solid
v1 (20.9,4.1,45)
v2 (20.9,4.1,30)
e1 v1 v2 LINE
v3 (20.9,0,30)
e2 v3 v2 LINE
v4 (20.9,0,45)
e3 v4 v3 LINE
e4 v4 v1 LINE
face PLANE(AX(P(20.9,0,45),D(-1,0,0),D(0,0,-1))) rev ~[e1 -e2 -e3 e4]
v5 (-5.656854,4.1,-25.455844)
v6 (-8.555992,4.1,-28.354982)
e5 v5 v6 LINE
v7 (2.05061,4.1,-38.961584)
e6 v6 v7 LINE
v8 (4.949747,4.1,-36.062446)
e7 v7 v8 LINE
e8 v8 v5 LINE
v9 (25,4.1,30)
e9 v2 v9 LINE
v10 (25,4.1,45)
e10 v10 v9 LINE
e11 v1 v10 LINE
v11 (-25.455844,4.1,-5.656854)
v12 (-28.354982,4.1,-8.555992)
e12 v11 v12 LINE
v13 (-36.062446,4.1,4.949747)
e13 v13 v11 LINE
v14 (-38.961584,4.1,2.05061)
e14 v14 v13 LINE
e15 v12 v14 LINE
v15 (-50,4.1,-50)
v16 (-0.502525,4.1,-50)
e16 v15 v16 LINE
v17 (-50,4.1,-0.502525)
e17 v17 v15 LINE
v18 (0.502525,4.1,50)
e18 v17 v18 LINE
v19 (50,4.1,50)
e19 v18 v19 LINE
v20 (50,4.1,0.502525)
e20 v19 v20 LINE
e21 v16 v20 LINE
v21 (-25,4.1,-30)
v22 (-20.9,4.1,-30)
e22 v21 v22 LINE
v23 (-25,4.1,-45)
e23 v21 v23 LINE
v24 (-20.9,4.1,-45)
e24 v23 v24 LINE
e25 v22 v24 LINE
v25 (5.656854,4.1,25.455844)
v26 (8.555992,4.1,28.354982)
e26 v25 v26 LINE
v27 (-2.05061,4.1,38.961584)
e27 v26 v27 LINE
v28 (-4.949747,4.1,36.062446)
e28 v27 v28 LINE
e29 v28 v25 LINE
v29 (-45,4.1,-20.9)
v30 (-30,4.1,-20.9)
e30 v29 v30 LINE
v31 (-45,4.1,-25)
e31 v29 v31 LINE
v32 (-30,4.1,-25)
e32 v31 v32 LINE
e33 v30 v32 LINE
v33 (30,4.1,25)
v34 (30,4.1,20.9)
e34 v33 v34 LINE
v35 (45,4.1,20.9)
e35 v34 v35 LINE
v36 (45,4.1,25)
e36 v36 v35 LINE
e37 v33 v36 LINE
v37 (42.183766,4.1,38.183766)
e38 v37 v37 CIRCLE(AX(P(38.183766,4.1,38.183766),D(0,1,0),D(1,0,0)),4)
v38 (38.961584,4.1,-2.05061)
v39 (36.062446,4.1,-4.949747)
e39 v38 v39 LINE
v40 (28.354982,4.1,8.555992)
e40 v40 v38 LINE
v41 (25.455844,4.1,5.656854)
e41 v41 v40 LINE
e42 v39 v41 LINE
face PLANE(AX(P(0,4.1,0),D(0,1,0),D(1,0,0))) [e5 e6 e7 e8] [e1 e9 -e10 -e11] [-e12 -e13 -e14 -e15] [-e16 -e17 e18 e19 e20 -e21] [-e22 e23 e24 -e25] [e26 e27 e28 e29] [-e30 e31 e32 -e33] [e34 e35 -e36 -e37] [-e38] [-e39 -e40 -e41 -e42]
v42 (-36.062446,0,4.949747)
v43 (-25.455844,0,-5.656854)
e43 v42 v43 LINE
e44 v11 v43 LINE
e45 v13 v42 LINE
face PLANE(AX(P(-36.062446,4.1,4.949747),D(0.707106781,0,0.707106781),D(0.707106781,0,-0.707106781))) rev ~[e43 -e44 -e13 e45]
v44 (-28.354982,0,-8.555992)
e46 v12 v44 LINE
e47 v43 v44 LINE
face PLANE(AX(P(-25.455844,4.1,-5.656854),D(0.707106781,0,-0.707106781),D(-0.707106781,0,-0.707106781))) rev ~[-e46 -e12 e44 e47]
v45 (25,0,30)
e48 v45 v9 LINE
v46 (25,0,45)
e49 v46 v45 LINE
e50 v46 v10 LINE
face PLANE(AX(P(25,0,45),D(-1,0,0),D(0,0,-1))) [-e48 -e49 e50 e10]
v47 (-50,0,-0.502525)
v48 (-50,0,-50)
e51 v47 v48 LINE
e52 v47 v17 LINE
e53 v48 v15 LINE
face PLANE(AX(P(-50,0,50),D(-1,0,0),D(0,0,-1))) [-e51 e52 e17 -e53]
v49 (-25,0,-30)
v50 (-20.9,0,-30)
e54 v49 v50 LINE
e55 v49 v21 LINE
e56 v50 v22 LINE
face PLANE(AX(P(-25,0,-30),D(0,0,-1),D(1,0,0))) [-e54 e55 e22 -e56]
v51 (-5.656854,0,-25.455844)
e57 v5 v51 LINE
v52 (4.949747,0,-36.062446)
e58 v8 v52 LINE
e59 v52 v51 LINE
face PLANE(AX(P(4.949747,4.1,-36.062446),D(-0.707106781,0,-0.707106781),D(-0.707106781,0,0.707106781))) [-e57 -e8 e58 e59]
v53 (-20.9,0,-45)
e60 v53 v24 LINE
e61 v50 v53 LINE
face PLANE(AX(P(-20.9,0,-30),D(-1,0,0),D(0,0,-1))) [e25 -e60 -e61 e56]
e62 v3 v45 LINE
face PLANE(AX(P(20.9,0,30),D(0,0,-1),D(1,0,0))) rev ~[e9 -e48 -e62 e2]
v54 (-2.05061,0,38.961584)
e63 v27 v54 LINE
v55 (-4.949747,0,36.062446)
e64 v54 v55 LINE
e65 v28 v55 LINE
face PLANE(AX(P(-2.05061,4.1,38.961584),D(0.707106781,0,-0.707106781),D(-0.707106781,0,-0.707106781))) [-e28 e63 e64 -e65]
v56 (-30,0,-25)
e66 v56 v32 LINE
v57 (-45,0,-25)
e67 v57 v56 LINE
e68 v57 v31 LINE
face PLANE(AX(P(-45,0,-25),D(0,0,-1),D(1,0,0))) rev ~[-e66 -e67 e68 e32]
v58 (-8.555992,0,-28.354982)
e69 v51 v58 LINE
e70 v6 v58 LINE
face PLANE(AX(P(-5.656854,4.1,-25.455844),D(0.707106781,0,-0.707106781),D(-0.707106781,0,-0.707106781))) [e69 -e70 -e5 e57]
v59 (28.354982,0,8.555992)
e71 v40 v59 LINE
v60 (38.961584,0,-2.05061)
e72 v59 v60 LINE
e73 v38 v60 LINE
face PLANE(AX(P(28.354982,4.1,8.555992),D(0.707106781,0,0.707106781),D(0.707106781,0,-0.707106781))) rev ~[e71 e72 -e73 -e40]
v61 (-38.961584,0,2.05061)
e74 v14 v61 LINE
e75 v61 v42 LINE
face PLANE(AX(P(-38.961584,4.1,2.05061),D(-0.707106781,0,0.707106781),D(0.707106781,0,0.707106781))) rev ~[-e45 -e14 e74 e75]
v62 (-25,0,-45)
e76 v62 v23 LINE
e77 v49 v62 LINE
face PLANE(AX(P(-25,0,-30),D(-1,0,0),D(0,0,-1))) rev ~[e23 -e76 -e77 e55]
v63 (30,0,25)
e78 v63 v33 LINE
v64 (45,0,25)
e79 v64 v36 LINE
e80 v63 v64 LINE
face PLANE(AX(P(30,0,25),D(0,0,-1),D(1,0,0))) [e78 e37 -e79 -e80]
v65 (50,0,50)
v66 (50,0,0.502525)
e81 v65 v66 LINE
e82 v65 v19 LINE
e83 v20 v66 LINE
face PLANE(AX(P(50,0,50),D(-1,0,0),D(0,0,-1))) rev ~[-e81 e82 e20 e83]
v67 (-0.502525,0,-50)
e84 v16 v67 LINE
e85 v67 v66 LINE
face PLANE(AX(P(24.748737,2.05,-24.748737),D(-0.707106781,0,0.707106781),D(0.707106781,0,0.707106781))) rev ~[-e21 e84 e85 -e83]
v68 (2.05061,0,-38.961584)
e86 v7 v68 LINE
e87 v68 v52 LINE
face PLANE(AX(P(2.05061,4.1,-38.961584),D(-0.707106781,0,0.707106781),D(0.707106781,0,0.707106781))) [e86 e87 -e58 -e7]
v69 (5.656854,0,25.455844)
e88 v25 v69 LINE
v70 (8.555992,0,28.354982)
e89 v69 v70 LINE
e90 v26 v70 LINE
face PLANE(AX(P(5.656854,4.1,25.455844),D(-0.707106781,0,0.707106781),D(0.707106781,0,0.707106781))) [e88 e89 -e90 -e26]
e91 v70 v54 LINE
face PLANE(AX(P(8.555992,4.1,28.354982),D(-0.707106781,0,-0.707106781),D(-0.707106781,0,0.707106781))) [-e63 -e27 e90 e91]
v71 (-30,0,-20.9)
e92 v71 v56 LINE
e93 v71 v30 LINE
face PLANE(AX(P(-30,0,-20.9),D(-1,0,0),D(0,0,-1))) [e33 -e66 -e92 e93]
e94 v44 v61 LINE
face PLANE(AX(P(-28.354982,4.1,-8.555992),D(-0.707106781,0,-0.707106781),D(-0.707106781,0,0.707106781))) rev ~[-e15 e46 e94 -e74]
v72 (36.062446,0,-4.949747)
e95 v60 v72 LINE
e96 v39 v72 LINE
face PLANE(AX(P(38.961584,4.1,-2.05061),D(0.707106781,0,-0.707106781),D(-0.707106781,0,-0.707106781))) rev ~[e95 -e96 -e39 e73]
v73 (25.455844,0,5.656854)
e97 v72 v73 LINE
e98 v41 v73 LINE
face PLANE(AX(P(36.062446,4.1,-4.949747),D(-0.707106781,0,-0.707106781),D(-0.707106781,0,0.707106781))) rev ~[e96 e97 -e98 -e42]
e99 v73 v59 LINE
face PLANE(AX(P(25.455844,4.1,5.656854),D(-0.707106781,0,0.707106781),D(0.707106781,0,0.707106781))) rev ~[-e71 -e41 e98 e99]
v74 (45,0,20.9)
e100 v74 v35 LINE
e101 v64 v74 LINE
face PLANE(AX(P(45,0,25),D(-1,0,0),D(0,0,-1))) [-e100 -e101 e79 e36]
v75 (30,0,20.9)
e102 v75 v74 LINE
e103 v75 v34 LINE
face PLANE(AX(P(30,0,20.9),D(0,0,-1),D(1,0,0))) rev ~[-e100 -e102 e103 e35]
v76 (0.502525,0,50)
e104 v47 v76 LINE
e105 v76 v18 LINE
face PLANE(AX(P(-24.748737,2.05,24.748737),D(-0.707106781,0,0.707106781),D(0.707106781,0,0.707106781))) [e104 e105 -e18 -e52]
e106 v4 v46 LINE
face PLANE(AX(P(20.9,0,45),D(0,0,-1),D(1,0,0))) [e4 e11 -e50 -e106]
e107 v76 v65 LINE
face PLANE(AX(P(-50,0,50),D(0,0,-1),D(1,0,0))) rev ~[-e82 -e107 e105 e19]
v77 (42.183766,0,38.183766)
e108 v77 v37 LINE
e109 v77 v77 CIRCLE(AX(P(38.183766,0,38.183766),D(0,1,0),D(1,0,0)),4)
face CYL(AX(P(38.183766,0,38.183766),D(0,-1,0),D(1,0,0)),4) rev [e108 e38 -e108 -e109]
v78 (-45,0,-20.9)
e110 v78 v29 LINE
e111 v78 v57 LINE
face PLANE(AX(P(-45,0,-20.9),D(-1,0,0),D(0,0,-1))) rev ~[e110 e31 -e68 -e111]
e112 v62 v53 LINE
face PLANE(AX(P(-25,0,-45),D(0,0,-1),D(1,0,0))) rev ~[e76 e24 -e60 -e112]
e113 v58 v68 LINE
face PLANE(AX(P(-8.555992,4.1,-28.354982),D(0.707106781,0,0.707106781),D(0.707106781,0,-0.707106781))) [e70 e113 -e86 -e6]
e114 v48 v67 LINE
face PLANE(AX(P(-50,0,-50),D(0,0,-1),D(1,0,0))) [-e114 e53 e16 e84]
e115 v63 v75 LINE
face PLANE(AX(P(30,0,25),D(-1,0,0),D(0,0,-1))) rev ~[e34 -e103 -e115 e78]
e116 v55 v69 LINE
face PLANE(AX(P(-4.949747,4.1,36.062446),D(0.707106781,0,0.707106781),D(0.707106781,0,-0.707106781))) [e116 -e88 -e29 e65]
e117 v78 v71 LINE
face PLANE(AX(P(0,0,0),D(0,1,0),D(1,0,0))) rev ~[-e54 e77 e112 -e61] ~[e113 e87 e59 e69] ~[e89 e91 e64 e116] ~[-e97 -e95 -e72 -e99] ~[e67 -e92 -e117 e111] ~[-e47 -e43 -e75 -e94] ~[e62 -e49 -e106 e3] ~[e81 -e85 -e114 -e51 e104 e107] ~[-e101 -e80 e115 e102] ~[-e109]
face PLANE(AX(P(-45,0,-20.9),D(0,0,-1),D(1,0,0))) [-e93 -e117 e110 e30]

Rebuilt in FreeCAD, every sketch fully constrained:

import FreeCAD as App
import Part
import Sketcher
Q = App.Units.Quantity

doc = App.newDocument("Part")
body = doc.addObject("PartDesign::Body", "Body")

# Sketch on XZ plane
sketch1 = body.newObject("Sketcher::SketchObject", "Sketch")
sketch1.AttachmentSupport = (doc.getObject("XZ_Plane"), [""])
sketch1.MapMode = "FlatFace"
sketch1.addGeometry([
    Part.LineSegment(App.Vector(-50, -50, 0), App.Vector(-50, 50, 0)),  # 0
    Part.LineSegment(App.Vector(-50, 50, 0), App.Vector(50, 50, 0)),  # 1
    Part.LineSegment(App.Vector(50, 50, 0), App.Vector(50, -50, 0)),  # 2
    Part.LineSegment(App.Vector(50, -50, 0), App.Vector(-50, -50, 0)),  # 3
    Part.LineSegment(App.Vector(-20.9, 45, 0), App.Vector(-25, 45, 0)),  # 4
    Part.LineSegment(App.Vector(-25, 45, 0), App.Vector(-25, 30, 0)),  # 5
    Part.LineSegment(App.Vector(-25, 30, 0), App.Vector(-20.9, 30, 0)),  # 6
    Part.LineSegment(App.Vector(-20.9, 30, 0), App.Vector(-20.9, 45, 0)),  # 7
    Part.LineSegment(App.Vector(-30, 25, 0), App.Vector(-45, 25, 0)),  # 8
    Part.LineSegment(App.Vector(-45, 25, 0), App.Vector(-45, 20.9, 0)),  # 9
    Part.LineSegment(App.Vector(-45, 20.9, 0), App.Vector(-30, 20.9, 0)),  # 10
    Part.LineSegment(App.Vector(-30, 20.9, 0), App.Vector(-30, 25, 0)),  # 11
    Part.LineSegment(App.Vector(25, 45, 0), App.Vector(20.9, 45, 0)),  # 12
    Part.LineSegment(App.Vector(20.9, 45, 0), App.Vector(20.9, 30, 0)),  # 13
    Part.LineSegment(App.Vector(20.9, 30, 0), App.Vector(25, 30, 0)),  # 14
    Part.LineSegment(App.Vector(25, 30, 0), App.Vector(25, 45, 0)),  # 15
    Part.Circle(App.Vector(38.2, 38.2, 0), App.Vector(0, 0, 1), 4),  # 16
    Part.LineSegment(App.Vector(45, 25, 0), App.Vector(30, 25, 0)),  # 17
    Part.LineSegment(App.Vector(30, 25, 0), App.Vector(30, 20.9, 0)),  # 18
    Part.LineSegment(App.Vector(30, 20.9, 0), App.Vector(45, 20.9, 0)),  # 19
    Part.LineSegment(App.Vector(45, 20.9, 0), App.Vector(45, 25, 0)),  # 20
    Part.LineSegment(App.Vector(-30, -20.9, 0), App.Vector(-45, -20.9, 0)),  # 21
    Part.LineSegment(App.Vector(-45, -20.9, 0), App.Vector(-45, -25, 0)),  # 22
    Part.LineSegment(App.Vector(-45, -25, 0), App.Vector(-30, -25, 0)),  # 23
    Part.LineSegment(App.Vector(-30, -25, 0), App.Vector(-30, -20.9, 0)),  # 24
    Part.LineSegment(App.Vector(-20.9, -30, 0), App.Vector(-25, -30, 0)),  # 25
    Part.LineSegment(App.Vector(-25, -30, 0), App.Vector(-25, -45, 0)),  # 26
    Part.LineSegment(App.Vector(-25, -45, 0), App.Vector(-20.9, -45, 0)),  # 27
    Part.LineSegment(App.Vector(-20.9, -45, 0), App.Vector(-20.9, -30, 0)),  # 28
    Part.LineSegment(App.Vector(45, -20.9, 0), App.Vector(30, -20.9, 0)),  # 29
    Part.LineSegment(App.Vector(30, -20.9, 0), App.Vector(30, -25, 0)),  # 30
    Part.LineSegment(App.Vector(30, -25, 0), App.Vector(45, -25, 0)),  # 31
    Part.LineSegment(App.Vector(45, -25, 0), App.Vector(45, -20.9, 0)),  # 32
    Part.LineSegment(App.Vector(25, -30, 0), App.Vector(20.9, -30, 0)),  # 33
    Part.LineSegment(App.Vector(20.9, -30, 0), App.Vector(20.9, -45, 0)),  # 34
    Part.LineSegment(App.Vector(20.9, -45, 0), App.Vector(25, -45, 0)),  # 35
    Part.LineSegment(App.Vector(25, -45, 0), App.Vector(25, -30, 0)),  # 36
], False)
sketch1.addConstraint([
    Sketcher.Constraint("Coincident", 0, 2, 1, 1),
    Sketcher.Constraint("Coincident", 1, 2, 2, 1),
    Sketcher.Constraint("Coincident", 2, 2, 3, 1),
    Sketcher.Constraint("Coincident", 3, 2, 0, 1),
    Sketcher.Constraint("Coincident", 4, 2, 5, 1),
    Sketcher.Constraint("Coincident", 5, 2, 6, 1),
    Sketcher.Constraint("Coincident", 6, 2, 7, 1),
    Sketcher.Constraint("Coincident", 7, 2, 4, 1),
    Sketcher.Constraint("Coincident", 8, 2, 9, 1),
    Sketcher.Constraint("Coincident", 9, 2, 10, 1),
    Sketcher.Constraint("Coincident", 10, 2, 11, 1),
    Sketcher.Constraint("Coincident", 11, 2, 8, 1),
    Sketcher.Constraint("Coincident", 12, 2, 13, 1),
    Sketcher.Constraint("Coincident", 13, 2, 14, 1),
    Sketcher.Constraint("Coincident", 14, 2, 15, 1),
    Sketcher.Constraint("Coincident", 15, 2, 12, 1),
    Sketcher.Constraint("Coincident", 17, 2, 18, 1),
    Sketcher.Constraint("Coincident", 18, 2, 19, 1),
    Sketcher.Constraint("Coincident", 19, 2, 20, 1),
    Sketcher.Constraint("Coincident", 20, 2, 17, 1),
    Sketcher.Constraint("Coincident", 21, 2, 22, 1),
    Sketcher.Constraint("Coincident", 22, 2, 23, 1),
    Sketcher.Constraint("Coincident", 23, 2, 24, 1),
    Sketcher.Constraint("Coincident", 24, 2, 21, 1),
    Sketcher.Constraint("Coincident", 25, 2, 26, 1),
    Sketcher.Constraint("Coincident", 26, 2, 27, 1),
    Sketcher.Constraint("Coincident", 27, 2, 28, 1),
    Sketcher.Constraint("Coincident", 28, 2, 25, 1),
    Sketcher.Constraint("Coincident", 29, 2, 30, 1),
    Sketcher.Constraint("Coincident", 30, 2, 31, 1),
    Sketcher.Constraint("Coincident", 31, 2, 32, 1),
    Sketcher.Constraint("Coincident", 32, 2, 29, 1),
    Sketcher.Constraint("Coincident", 33, 2, 34, 1),
    Sketcher.Constraint("Coincident", 34, 2, 35, 1),
    Sketcher.Constraint("Coincident", 35, 2, 36, 1),
    Sketcher.Constraint("Coincident", 36, 2, 33, 1),
    Sketcher.Constraint("Vertical", 0),
    Sketcher.Constraint("Horizontal", 1),
    Sketcher.Constraint("Vertical", 2),
    Sketcher.Constraint("Horizontal", 3),
    Sketcher.Constraint("Horizontal", 4),
    Sketcher.Constraint("Vertical", 5),
    Sketcher.Constraint("Horizontal", 6),
    Sketcher.Constraint("Vertical", 7),
    Sketcher.Constraint("Horizontal", 8),
    Sketcher.Constraint("Vertical", 9),
    Sketcher.Constraint("Horizontal", 10),
    Sketcher.Constraint("Vertical", 11),
    Sketcher.Constraint("Horizontal", 12),
    Sketcher.Constraint("Vertical", 13),
    Sketcher.Constraint("Horizontal", 14),
    Sketcher.Constraint("Vertical", 15),
    Sketcher.Constraint("Horizontal", 17),
    Sketcher.Constraint("Vertical", 18),
    Sketcher.Constraint("Horizontal", 19),
    Sketcher.Constraint("Vertical", 20),
    Sketcher.Constraint("Horizontal", 21),
    Sketcher.Constraint("Vertical", 22),
    Sketcher.Constraint("Horizontal", 23),
    Sketcher.Constraint("Vertical", 24),
    Sketcher.Constraint("Horizontal", 25),
    Sketcher.Constraint("Vertical", 26),
    Sketcher.Constraint("Horizontal", 27),
    Sketcher.Constraint("Vertical", 28),
    Sketcher.Constraint("Horizontal", 29),
    Sketcher.Constraint("Vertical", 30),
    Sketcher.Constraint("Horizontal", 31),
    Sketcher.Constraint("Vertical", 32),
    Sketcher.Constraint("Horizontal", 33),
    Sketcher.Constraint("Vertical", 34),
    Sketcher.Constraint("Horizontal", 35),
    Sketcher.Constraint("Vertical", 36),
    Sketcher.Constraint("Symmetric", 0, 2, 2, 2, -1, 1),
    Sketcher.Constraint("Symmetric", 19, 2, 21, 2, -1, 1),
    Sketcher.Constraint("Symmetric", 17, 2, 23, 2, -1, 1),
    Sketcher.Constraint("Symmetric", 14, 2, 25, 2, -1, 1),
    Sketcher.Constraint("Symmetric", 12, 2, 27, 2, -1, 1),
    Sketcher.Constraint("Symmetric", 10, 2, 29, 2, -1, 1),
    Sketcher.Constraint("Symmetric", 8, 2, 31, 2, -1, 1),
    Sketcher.Constraint("Symmetric", 6, 2, 33, 2, -1, 1),
    Sketcher.Constraint("Symmetric", 4, 2, 35, 2, -1, 1),
    Sketcher.Constraint("Symmetric", 7, 2, 12, 2, -2),
    Sketcher.Constraint("Symmetric", 5, 2, 14, 2, -2),
    Sketcher.Constraint("Symmetric", 11, 2, 17, 2, -2),
    Sketcher.Constraint("Symmetric", 9, 2, 19, 2, -2),
    Sketcher.Constraint("Equal", 3, 0),
    Sketcher.Constraint("Equal", 31, 5),
    Sketcher.Constraint("Equal", 35, 9),
    Sketcher.Constraint("Diameter", 16, Q("8 mm")),
    Sketcher.Constraint("DistanceX", 1, 1, 1, 2, Q("100 mm")),
    Sketcher.Constraint("DistanceX", 8, 2, 8, 1, Q("15 mm")),
    Sketcher.Constraint("DistanceX", 4, 2, 4, 1, Q("4.1 mm")),
    Sketcher.Constraint("DistanceX", 4, 2, -1, 1, Q("25 mm")),
    Sketcher.Constraint("DistanceY", -1, 1, 4, 2, Q("45 mm")),
    Sketcher.Constraint("DistanceX", 8, 2, -1, 1, Q("45 mm")),
    Sketcher.Constraint("DistanceY", -1, 1, 8, 2, Q("25 mm")),
    Sketcher.Constraint("DistanceX", -1, 1, 16, 3, Q("38.183766 mm")),
    Sketcher.Constraint("DistanceY", -1, 1, 16, 3, Q("38.183766 mm")),
])
pad1 = body.newObject("PartDesign::Pad", "Pad")
pad1.Profile = sketch1
pad1.Length = 4.1
pad1.Reversed = True

# Sketch on an angled plane
sketch2 = body.newObject("Sketcher::SketchObject", "Sketch001")
sketch2.Placement = App.Placement(App.Vector(-24.748737, 0, 24.748737), App.Rotation(App.Vector(0.707106781, 0, 0.707106781), App.Vector(0, 0.999999999, 0), App.Vector(-0.707106781, 0, 0.707106781), "ZXY"))
sketch2.addGeometry([
    Part.LineSegment(App.Vector(-70.7, 4.1, 0), App.Vector(-70.7, 0, 0)),
    Part.LineSegment(App.Vector(-70.7, 0, 0), App.Vector(70.7, 0, 0)),
    Part.LineSegment(App.Vector(70.7, 0, 0), App.Vector(70.7, 4.1, 0)),
    Part.LineSegment(App.Vector(70.7, 4.1, 0), App.Vector(-70.7, 4.1, 0)),
], False)
sketch2.addConstraint([
    Sketcher.Constraint("Coincident", 0, 2, 1, 1),
    Sketcher.Constraint("Coincident", 1, 2, 2, 1),
    Sketcher.Constraint("Coincident", 2, 2, 3, 1),
    Sketcher.Constraint("Coincident", 3, 2, 0, 1),
    Sketcher.Constraint("Vertical", 0),
    Sketcher.Constraint("Horizontal", 1),
    Sketcher.Constraint("Vertical", 2),
    Sketcher.Constraint("Horizontal", 3),
    Sketcher.Constraint("Symmetric", 0, 2, 1, 2, -1, 1),
    Sketcher.Constraint("DistanceY", 0, 2, 0, 1, Q("4.1 mm")),
    Sketcher.Constraint("DistanceX", 1, 1, 1, 2, Q("141.421356 mm")),
])
pocket1 = body.newObject("PartDesign::Pocket", "Pocket")
pocket1.Profile = sketch2
pocket1.Length = 35.710678
pocket1.Reversed = True

# Sketch on an angled plane
sketch3 = body.newObject("Sketcher::SketchObject", "Sketch002")
sketch3.Placement = App.Placement(App.Vector(24.748737, 0, -24.748737), App.Rotation(App.Vector(0.707106781, 0, 0.707106781), App.Vector(0, 0.999999999, 0), App.Vector(-0.707106781, 0, 0.707106781), "ZXY"))
sketch3.addGeometry([
    Part.LineSegment(App.Vector(-70.7, 4.1, 0), App.Vector(-70.7, 0, 0)),
    Part.LineSegment(App.Vector(-70.7, 0, 0), App.Vector(70.7, 0, 0)),
    Part.LineSegment(App.Vector(70.7, 0, 0), App.Vector(70.7, 4.1, 0)),
    Part.LineSegment(App.Vector(70.7, 4.1, 0), App.Vector(-70.7, 4.1, 0)),
], False)
sketch3.addConstraint([
    Sketcher.Constraint("Coincident", 0, 2, 1, 1),
    Sketcher.Constraint("Coincident", 1, 2, 2, 1),
    Sketcher.Constraint("Coincident", 2, 2, 3, 1),
    Sketcher.Constraint("Coincident", 3, 2, 0, 1),
    Sketcher.Constraint("Vertical", 0),
    Sketcher.Constraint("Horizontal", 1),
    Sketcher.Constraint("Vertical", 2),
    Sketcher.Constraint("Horizontal", 3),
    Sketcher.Constraint("Symmetric", 0, 2, 1, 2, -1, 1),
    Sketcher.Constraint("DistanceY", 0, 2, 0, 1, Q("4.1 mm")),
    Sketcher.Constraint("DistanceX", 1, 1, 1, 2, Q("141.421356 mm")),
])
pocket2 = body.newObject("PartDesign::Pocket", "Pocket001")
pocket2.Profile = sketch3
pocket2.Length = 35.710678

# Sketch on XZ plane
sketch4 = body.newObject("Sketcher::SketchObject", "Sketch003")
sketch4.AttachmentSupport = (doc.getObject("XZ_Plane"), [""])
sketch4.MapMode = "FlatFace"
sketch4.AttachmentOffset = App.Placement(App.Vector(0, 0, -4.1), App.Rotation())
sketch4.addGeometry([
    Part.LineSegment(App.Vector(-39, 2.1, 0), App.Vector(-36.1, 4.9, 0)),  # 0
    Part.LineSegment(App.Vector(-36.1, 4.9, 0), App.Vector(-25.5, -5.7, 0)),  # 1
    Part.LineSegment(App.Vector(-25.5, -5.7, 0), App.Vector(-28.4, -8.6, 0)),  # 2
    Part.LineSegment(App.Vector(-28.4, -8.6, 0), App.Vector(-39, 2.1, 0)),  # 3
    Part.LineSegment(App.Vector(-2.1, 39, 0), App.Vector(8.6, 28.4, 0)),  # 4
    Part.LineSegment(App.Vector(8.6, 28.4, 0), App.Vector(5.7, 25.5, 0)),  # 5
    Part.LineSegment(App.Vector(5.7, 25.5, 0), App.Vector(-4.9, 36.1, 0)),  # 6
    Part.LineSegment(App.Vector(-4.9, 36.1, 0), App.Vector(-2.1, 39, 0)),  # 7
    Part.LineSegment(App.Vector(39, -2.1, 0), App.Vector(36.1, -4.9, 0)),  # 8
    Part.LineSegment(App.Vector(36.1, -4.9, 0), App.Vector(25.5, 5.7, 0)),  # 9
    Part.LineSegment(App.Vector(25.5, 5.7, 0), App.Vector(28.4, 8.6, 0)),  # 10
    Part.LineSegment(App.Vector(28.4, 8.6, 0), App.Vector(39, -2.1, 0)),  # 11
    Part.LineSegment(App.Vector(2.1, -39, 0), App.Vector(-8.6, -28.4, 0)),  # 12
    Part.LineSegment(App.Vector(-8.6, -28.4, 0), App.Vector(-5.7, -25.5, 0)),  # 13
    Part.LineSegment(App.Vector(-5.7, -25.5, 0), App.Vector(4.9, -36.1, 0)),  # 14
    Part.LineSegment(App.Vector(4.9, -36.1, 0), App.Vector(2.1, -39, 0)),  # 15
], False)
sketch4.addConstraint([
    Sketcher.Constraint("Coincident", 0, 2, 1, 1),
    Sketcher.Constraint("Coincident", 1, 2, 2, 1),
    Sketcher.Constraint("Coincident", 2, 2, 3, 1),
    Sketcher.Constraint("Coincident", 3, 2, 0, 1),
    Sketcher.Constraint("Coincident", 4, 2, 5, 1),
    Sketcher.Constraint("Coincident", 5, 2, 6, 1),
    Sketcher.Constraint("Coincident", 6, 2, 7, 1),
    Sketcher.Constraint("Coincident", 7, 2, 4, 1),
    Sketcher.Constraint("Coincident", 8, 2, 9, 1),
    Sketcher.Constraint("Coincident", 9, 2, 10, 1),
    Sketcher.Constraint("Coincident", 10, 2, 11, 1),
    Sketcher.Constraint("Coincident", 11, 2, 8, 1),
    Sketcher.Constraint("Coincident", 12, 2, 13, 1),
    Sketcher.Constraint("Coincident", 13, 2, 14, 1),
    Sketcher.Constraint("Coincident", 14, 2, 15, 1),
    Sketcher.Constraint("Coincident", 15, 2, 12, 1),
    Sketcher.Constraint("Symmetric", 0, 2, 8, 2, -1, 1),
    Sketcher.Constraint("Symmetric", 1, 2, 9, 2, -1, 1),
    Sketcher.Constraint("Symmetric", 2, 2, 10, 2, -1, 1),
    Sketcher.Constraint("Symmetric", 3, 2, 11, 2, -1, 1),
    Sketcher.Constraint("Symmetric", 4, 2, 12, 2, -1, 1),
    Sketcher.Constraint("Symmetric", 5, 2, 13, 2, -1, 1),
    Sketcher.Constraint("Symmetric", 6, 2, 14, 2, -1, 1),
    Sketcher.Constraint("Symmetric", 7, 2, 15, 2, -1, 1),
    Sketcher.Constraint("Perpendicular", 0, 1),
    Sketcher.Constraint("Perpendicular", 1, 2),
    Sketcher.Constraint("Perpendicular", 2, 3),
    Sketcher.Constraint("Parallel", 3, 4),
    Sketcher.Constraint("Perpendicular", 4, 5),
    Sketcher.Constraint("Perpendicular", 5, 6),
    Sketcher.Constraint("Perpendicular", 6, 7),
    Sketcher.Constraint("Equal", 3, 4),
    Sketcher.Constraint("Equal", 2, 5),
    Sketcher.Constraint("Angle", 0, Q("45 deg")),
    Sketcher.Constraint("Distance", 1, Q("15 mm")),
    Sketcher.Constraint("Distance", 0, Q("4.1 mm")),
    Sketcher.Constraint("DistanceX", 1, 2, 5, 2, Q("31.112698 mm")),
    Sketcher.Constraint("DistanceY", 1, 2, 5, 2, Q("31.112698 mm")),
    Sketcher.Constraint("DistanceX", 2, 2, -1, 1, Q("28.354982 mm")),
    Sketcher.Constraint("DistanceY", -1, 1, 3, 2, Q("2.05061 mm")),
])
pocket3 = body.newObject("PartDesign::Pocket", "Pocket002")
pocket3.Profile = sketch4
pocket3.Type = "ThroughAll"
pocket3.Reversed = True

doc.recompute()
